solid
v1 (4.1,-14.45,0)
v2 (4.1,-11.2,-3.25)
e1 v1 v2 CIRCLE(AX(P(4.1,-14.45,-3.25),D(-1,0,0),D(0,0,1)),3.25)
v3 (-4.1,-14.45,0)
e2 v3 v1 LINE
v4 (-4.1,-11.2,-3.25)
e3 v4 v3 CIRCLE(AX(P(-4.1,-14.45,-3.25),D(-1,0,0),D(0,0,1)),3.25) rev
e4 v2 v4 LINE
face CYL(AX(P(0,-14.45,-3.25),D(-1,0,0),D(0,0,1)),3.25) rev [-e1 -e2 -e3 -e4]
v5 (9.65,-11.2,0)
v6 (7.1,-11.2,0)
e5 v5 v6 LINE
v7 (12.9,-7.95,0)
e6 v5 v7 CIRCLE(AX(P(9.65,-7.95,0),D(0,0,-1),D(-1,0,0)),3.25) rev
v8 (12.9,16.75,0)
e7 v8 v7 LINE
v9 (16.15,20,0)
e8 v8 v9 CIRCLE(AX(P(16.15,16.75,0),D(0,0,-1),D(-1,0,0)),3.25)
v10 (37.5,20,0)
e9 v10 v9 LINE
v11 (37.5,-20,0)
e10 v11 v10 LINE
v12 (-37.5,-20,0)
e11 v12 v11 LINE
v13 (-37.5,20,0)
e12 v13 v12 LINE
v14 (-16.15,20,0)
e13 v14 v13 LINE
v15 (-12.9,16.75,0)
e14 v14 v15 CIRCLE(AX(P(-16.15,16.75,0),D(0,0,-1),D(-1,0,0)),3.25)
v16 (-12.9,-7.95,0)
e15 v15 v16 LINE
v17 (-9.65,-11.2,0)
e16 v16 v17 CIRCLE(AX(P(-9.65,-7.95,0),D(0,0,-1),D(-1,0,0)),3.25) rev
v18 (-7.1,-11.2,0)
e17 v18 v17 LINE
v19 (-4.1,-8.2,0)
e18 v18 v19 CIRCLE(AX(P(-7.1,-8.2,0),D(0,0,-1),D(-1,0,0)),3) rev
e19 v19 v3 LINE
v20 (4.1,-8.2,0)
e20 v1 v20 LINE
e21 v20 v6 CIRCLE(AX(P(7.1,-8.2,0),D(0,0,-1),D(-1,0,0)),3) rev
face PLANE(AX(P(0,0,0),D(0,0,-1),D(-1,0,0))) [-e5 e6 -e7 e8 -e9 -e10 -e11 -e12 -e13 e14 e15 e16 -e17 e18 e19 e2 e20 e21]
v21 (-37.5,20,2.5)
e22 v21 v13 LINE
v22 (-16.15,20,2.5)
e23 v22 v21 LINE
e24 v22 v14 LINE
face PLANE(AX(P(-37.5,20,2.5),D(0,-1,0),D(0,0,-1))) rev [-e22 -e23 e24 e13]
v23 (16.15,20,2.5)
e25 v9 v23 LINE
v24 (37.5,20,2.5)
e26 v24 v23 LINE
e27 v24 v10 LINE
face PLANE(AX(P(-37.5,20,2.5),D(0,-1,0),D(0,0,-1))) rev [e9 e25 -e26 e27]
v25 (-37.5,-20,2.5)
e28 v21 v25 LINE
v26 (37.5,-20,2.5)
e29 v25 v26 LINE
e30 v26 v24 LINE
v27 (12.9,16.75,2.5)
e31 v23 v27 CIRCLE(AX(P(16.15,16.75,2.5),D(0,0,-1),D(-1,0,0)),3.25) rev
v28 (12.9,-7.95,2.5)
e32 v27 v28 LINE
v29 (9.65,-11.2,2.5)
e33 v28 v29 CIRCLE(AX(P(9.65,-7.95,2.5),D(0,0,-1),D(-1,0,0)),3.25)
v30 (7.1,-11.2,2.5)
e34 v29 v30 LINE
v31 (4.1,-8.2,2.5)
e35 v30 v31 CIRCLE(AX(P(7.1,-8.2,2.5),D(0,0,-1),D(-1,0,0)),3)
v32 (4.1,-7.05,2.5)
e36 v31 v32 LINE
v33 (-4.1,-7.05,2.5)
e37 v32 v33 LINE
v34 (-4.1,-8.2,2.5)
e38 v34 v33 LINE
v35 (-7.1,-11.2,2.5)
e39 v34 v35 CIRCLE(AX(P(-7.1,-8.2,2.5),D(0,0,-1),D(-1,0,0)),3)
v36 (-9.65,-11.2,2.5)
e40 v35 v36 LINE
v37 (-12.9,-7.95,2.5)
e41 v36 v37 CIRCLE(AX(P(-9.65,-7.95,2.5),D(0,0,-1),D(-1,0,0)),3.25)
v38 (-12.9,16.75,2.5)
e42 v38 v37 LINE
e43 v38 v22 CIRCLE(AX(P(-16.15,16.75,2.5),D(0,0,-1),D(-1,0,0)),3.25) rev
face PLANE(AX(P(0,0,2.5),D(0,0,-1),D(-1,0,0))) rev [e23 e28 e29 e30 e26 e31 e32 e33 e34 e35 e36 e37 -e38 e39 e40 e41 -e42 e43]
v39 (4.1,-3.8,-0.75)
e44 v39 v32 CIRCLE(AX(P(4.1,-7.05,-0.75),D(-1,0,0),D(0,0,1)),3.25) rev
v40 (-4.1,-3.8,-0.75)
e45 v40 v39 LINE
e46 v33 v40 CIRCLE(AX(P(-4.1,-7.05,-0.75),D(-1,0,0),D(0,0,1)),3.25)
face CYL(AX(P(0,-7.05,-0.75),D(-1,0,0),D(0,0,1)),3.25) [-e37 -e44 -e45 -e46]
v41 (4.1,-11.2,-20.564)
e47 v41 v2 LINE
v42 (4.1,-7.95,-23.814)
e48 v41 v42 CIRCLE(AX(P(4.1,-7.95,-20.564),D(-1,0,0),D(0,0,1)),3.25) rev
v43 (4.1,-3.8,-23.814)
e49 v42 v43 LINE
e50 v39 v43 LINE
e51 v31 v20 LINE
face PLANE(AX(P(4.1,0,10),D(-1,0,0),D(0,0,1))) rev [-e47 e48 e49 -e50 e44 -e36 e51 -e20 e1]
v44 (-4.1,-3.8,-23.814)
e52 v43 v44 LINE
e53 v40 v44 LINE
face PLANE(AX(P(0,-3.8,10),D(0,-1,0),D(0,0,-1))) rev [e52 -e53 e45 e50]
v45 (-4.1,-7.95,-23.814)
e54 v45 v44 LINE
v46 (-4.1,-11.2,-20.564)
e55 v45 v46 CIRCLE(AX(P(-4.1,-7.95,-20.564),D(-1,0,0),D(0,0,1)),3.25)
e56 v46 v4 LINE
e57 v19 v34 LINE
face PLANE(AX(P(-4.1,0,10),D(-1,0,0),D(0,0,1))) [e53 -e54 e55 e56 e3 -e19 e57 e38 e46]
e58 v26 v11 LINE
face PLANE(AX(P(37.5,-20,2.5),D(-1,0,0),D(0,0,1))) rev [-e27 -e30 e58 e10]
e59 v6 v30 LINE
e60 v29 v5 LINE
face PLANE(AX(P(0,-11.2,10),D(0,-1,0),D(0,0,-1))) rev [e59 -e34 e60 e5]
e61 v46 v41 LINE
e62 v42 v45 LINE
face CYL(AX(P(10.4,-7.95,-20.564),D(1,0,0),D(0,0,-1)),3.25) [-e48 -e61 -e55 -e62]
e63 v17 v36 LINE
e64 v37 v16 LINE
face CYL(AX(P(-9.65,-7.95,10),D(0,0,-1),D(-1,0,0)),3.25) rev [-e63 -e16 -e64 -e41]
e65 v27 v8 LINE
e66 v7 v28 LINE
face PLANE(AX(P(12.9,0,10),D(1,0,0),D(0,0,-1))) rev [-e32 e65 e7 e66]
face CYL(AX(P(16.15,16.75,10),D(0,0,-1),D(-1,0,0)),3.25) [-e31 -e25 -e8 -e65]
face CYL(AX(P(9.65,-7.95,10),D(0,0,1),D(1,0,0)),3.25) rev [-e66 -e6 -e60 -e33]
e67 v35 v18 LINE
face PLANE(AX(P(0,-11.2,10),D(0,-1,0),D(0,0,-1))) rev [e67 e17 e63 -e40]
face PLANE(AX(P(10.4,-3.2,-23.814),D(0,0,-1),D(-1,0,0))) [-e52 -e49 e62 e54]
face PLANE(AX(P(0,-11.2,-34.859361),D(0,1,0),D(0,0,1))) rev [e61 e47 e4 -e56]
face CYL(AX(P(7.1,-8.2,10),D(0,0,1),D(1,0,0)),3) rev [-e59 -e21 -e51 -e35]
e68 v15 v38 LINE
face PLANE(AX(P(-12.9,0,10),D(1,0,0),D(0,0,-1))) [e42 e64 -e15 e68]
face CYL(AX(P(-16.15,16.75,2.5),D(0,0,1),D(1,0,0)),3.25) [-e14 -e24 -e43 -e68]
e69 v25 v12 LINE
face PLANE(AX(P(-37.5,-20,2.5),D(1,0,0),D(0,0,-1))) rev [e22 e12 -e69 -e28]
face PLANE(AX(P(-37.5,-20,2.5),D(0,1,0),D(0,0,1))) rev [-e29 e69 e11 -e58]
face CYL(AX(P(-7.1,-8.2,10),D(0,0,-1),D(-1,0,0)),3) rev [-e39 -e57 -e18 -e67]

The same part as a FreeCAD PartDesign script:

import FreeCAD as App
import Part
import Sketcher

V = App.Vector


def edges_at(feature, points):
    """Names of the edges that pass closest to the given points."""
    edges = feature.Shape.Edges
    near = lambda p: min(range(len(edges)), key=lambda i: edges[i].distToShape(Part.Vertex(*p))[0])
    return sorted({f"Edge{near(p) + 1}" for p in points})


def add_polygon(sketch, points):
    """Adds a closed chain of lines whose ends are joined by coincident constraints."""
    first, n = sketch.GeometryCount, len(points)
    for a, b in zip(points, points[1:] + points[:1]):
        sketch.addGeometry(Part.LineSegment(App.Vector(*a, 0), App.Vector(*b, 0)), False)
    for i in range(n):
        sketch.addConstraint(Sketcher.Constraint("Coincident", first + i, 2, first + (i + 1) % n, 1))

doc = App.newDocument("Part")
body = doc.addObject("PartDesign::Body", "Body")

# Sketch on XY plane
sketch1 = doc.addObject("Sketcher::SketchObject", "Sketch")
body.addObject(sketch1)
sketch1.AttachmentSupport = (doc.XY_Plane, [""])
sketch1.MapMode = "FlatFace"
add_polygon(sketch1, [(-37.5, 20), (-37.5, -20), (37.5, -20), (37.5, 20)])  # lines 0-3
sketch1.addConstraint(Sketcher.Constraint("Vertical", 0))
sketch1.addConstraint(Sketcher.Constraint("Horizontal", 1))
sketch1.addConstraint(Sketcher.Constraint("Vertical", 2))
sketch1.addConstraint(Sketcher.Constraint("Horizontal", 3))
sketch1.addConstraint(Sketcher.Constraint("Symmetric", 0, 2, 2, 2, -1, 1))
sketch1.addConstraint(Sketcher.Constraint("DistanceX", 1, 1, 1, 2, 75.0))
sketch1.addConstraint(Sketcher.Constraint("DistanceY", 0, 2, 0, 1, 40.0))
pad1 = doc.addObject("PartDesign::Pad", "Pad")
body.addObject(pad1)
pad1.Profile = sketch1
pad1.Length = 2.5

# Sketch on XY plane
sketch2 = doc.addObject("Sketcher::SketchObject", "Sketch001")
body.addObject(sketch2)
sketch2.AttachmentSupport = (doc.XY_Plane, [""])
sketch2.MapMode = "FlatFace"
add_polygon(sketch2, [(12.9, -11.2), (12.9, 20), (-12.9, 20), (-12.9, -11.2), (-4.1, -11.2), (-4.1, -3.8), (4.1, -3.8), (4.1, -11.2)])  # lines 0-7
sketch2.addConstraint(Sketcher.Constraint("Vertical", 0))
sketch2.addConstraint(Sketcher.Constraint("Horizontal", 1))
sketch2.addConstraint(Sketcher.Constraint("Vertical", 2))
sketch2.addConstraint(Sketcher.Constraint("Horizontal", 3))
sketch2.addConstraint(Sketcher.Constraint("Vertical", 4))
sketch2.addConstraint(Sketcher.Constraint("Horizontal", 5))
sketch2.addConstraint(Sketcher.Constraint("Vertical", 6))
sketch2.addConstraint(Sketcher.Constraint("Horizontal", 7))
sketch2.addConstraint(Sketcher.Constraint("Symmetric", 3, 2, 6, 2, -2))
sketch2.addConstraint(Sketcher.Constraint("Equal", 3, 7))
sketch2.addConstraint(Sketcher.Constraint("DistanceX", 1, 2, 1, 1, 25.8))
sketch2.addConstraint(Sketcher.Constraint("DistanceX", 3, 1, 3, 2, 8.8))
sketch2.addConstraint(Sketcher.Constraint("DistanceY", 0, 1, 0, 2, 31.2))
sketch2.addConstraint(Sketcher.Constraint("DistanceY", 4, 1, 4, 2, 7.4))
sketch2.addConstraint(Sketcher.Constraint("DistanceY", -1, 1, 0, 2, 20.0))
pocket1 = doc.addObject("PartDesign::Pocket", "Pocket")
body.addObject(pocket1)
pocket1.Profile = sketch2
pocket1.Length = 10
pocket1.Reversed = True

# Sketch on XY plane
sketch3 = doc.addObject("Sketcher::SketchObject", "Sketch002")
body.addObject(sketch3)
sketch3.AttachmentSupport = (doc.XY_Plane, [""])
sketch3.MapMode = "FlatFace"
add_polygon(sketch3, [(-4.1, -3.8), (-4.1, -11.2), (4.1, -11.2), (4.1, -3.8)])  # lines 0-3
sketch3.addConstraint(Sketcher.Constraint("Vertical", 0))
sketch3.addConstraint(Sketcher.Constraint("Horizontal", 1))
sketch3.addConstraint(Sketcher.Constraint("Vertical", 2))
sketch3.addConstraint(Sketcher.Constraint("Horizontal", 3))
sketch3.addConstraint(Sketcher.Constraint("DistanceX", 1, 1, 1, 2, 8.2))
sketch3.addConstraint(Sketcher.Constraint("DistanceY", 0, 2, 0, 1, 7.4))
sketch3.addConstraint(Sketcher.Constraint("DistanceX", 0, 2, -1, 1, 4.1))
sketch3.addConstraint(Sketcher.Constraint("DistanceY", 0, 2, -1, 1, 11.2))
pad2 = doc.addObject("PartDesign::Pad", "Pad001")
body.addObject(pad2)
pad2.Profile = sketch3
pad2.Length = 23.814
pad2.Reversed = True
doc.recompute()

fillet = doc.addObject("PartDesign::Fillet", "Fillet")
body.addObject(fillet)
fillet.Base = (pad2, edges_at(pad2, [
    (-12.9, 20, 1.25),
    (-12.9, -11.2, 1.25),
    (0, -3.8, 2.5),
    (0, -11.2, 0),
    (12.9, -11.2, 1.25),
    (12.9, 20, 1.25),
    (0, -11.2, -23.814),
]))
fillet.Radius = 3.25
doc.recompute()

fillet2 = doc.addObject("PartDesign::Fillet", "Fillet001")
body.addObject(fillet2)
fillet2.Base = (fillet, edges_at(fillet, [(-4.1, -11.2, 1.25), (4.1, -11.2, 1.25)]))
fillet2.Radius = 3

doc.recompute()
